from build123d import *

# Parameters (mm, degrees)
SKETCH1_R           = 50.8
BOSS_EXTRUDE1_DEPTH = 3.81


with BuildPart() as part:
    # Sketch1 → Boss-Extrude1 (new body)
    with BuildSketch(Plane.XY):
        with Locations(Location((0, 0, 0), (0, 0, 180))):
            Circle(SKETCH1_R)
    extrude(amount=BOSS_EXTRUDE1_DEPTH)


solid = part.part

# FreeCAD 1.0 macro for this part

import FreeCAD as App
import Part
import Sketcher

V = App.Vector
Q = App.Units.Quantity

doc = App.newDocument("Part")
body = doc.addObject("PartDesign::Body", "Body")

# Sketch on XY plane
sketch1 = body.newObject("Sketcher::SketchObject", "Sketch")
sketch1.AttachmentSupport = (doc.getObject("XY_Plane"), [""])
sketch1.MapMode = "FlatFace"
sketch1.addGeometry(Part.Circle(V(0, 0, 0), V(0, 0, 1), 51), False)
sketch1.addConstraint([
    Sketcher.Constraint("Coincident", 0, 3, -1, 1),
    Sketcher.Constraint("Diameter", 0, Q("4 in")),
])
pad1 = body.newObject("PartDesign::Pad", "Pad")
pad1.Profile = sketch1
pad1.Length = Q("0.15 in")

doc.recompute()
